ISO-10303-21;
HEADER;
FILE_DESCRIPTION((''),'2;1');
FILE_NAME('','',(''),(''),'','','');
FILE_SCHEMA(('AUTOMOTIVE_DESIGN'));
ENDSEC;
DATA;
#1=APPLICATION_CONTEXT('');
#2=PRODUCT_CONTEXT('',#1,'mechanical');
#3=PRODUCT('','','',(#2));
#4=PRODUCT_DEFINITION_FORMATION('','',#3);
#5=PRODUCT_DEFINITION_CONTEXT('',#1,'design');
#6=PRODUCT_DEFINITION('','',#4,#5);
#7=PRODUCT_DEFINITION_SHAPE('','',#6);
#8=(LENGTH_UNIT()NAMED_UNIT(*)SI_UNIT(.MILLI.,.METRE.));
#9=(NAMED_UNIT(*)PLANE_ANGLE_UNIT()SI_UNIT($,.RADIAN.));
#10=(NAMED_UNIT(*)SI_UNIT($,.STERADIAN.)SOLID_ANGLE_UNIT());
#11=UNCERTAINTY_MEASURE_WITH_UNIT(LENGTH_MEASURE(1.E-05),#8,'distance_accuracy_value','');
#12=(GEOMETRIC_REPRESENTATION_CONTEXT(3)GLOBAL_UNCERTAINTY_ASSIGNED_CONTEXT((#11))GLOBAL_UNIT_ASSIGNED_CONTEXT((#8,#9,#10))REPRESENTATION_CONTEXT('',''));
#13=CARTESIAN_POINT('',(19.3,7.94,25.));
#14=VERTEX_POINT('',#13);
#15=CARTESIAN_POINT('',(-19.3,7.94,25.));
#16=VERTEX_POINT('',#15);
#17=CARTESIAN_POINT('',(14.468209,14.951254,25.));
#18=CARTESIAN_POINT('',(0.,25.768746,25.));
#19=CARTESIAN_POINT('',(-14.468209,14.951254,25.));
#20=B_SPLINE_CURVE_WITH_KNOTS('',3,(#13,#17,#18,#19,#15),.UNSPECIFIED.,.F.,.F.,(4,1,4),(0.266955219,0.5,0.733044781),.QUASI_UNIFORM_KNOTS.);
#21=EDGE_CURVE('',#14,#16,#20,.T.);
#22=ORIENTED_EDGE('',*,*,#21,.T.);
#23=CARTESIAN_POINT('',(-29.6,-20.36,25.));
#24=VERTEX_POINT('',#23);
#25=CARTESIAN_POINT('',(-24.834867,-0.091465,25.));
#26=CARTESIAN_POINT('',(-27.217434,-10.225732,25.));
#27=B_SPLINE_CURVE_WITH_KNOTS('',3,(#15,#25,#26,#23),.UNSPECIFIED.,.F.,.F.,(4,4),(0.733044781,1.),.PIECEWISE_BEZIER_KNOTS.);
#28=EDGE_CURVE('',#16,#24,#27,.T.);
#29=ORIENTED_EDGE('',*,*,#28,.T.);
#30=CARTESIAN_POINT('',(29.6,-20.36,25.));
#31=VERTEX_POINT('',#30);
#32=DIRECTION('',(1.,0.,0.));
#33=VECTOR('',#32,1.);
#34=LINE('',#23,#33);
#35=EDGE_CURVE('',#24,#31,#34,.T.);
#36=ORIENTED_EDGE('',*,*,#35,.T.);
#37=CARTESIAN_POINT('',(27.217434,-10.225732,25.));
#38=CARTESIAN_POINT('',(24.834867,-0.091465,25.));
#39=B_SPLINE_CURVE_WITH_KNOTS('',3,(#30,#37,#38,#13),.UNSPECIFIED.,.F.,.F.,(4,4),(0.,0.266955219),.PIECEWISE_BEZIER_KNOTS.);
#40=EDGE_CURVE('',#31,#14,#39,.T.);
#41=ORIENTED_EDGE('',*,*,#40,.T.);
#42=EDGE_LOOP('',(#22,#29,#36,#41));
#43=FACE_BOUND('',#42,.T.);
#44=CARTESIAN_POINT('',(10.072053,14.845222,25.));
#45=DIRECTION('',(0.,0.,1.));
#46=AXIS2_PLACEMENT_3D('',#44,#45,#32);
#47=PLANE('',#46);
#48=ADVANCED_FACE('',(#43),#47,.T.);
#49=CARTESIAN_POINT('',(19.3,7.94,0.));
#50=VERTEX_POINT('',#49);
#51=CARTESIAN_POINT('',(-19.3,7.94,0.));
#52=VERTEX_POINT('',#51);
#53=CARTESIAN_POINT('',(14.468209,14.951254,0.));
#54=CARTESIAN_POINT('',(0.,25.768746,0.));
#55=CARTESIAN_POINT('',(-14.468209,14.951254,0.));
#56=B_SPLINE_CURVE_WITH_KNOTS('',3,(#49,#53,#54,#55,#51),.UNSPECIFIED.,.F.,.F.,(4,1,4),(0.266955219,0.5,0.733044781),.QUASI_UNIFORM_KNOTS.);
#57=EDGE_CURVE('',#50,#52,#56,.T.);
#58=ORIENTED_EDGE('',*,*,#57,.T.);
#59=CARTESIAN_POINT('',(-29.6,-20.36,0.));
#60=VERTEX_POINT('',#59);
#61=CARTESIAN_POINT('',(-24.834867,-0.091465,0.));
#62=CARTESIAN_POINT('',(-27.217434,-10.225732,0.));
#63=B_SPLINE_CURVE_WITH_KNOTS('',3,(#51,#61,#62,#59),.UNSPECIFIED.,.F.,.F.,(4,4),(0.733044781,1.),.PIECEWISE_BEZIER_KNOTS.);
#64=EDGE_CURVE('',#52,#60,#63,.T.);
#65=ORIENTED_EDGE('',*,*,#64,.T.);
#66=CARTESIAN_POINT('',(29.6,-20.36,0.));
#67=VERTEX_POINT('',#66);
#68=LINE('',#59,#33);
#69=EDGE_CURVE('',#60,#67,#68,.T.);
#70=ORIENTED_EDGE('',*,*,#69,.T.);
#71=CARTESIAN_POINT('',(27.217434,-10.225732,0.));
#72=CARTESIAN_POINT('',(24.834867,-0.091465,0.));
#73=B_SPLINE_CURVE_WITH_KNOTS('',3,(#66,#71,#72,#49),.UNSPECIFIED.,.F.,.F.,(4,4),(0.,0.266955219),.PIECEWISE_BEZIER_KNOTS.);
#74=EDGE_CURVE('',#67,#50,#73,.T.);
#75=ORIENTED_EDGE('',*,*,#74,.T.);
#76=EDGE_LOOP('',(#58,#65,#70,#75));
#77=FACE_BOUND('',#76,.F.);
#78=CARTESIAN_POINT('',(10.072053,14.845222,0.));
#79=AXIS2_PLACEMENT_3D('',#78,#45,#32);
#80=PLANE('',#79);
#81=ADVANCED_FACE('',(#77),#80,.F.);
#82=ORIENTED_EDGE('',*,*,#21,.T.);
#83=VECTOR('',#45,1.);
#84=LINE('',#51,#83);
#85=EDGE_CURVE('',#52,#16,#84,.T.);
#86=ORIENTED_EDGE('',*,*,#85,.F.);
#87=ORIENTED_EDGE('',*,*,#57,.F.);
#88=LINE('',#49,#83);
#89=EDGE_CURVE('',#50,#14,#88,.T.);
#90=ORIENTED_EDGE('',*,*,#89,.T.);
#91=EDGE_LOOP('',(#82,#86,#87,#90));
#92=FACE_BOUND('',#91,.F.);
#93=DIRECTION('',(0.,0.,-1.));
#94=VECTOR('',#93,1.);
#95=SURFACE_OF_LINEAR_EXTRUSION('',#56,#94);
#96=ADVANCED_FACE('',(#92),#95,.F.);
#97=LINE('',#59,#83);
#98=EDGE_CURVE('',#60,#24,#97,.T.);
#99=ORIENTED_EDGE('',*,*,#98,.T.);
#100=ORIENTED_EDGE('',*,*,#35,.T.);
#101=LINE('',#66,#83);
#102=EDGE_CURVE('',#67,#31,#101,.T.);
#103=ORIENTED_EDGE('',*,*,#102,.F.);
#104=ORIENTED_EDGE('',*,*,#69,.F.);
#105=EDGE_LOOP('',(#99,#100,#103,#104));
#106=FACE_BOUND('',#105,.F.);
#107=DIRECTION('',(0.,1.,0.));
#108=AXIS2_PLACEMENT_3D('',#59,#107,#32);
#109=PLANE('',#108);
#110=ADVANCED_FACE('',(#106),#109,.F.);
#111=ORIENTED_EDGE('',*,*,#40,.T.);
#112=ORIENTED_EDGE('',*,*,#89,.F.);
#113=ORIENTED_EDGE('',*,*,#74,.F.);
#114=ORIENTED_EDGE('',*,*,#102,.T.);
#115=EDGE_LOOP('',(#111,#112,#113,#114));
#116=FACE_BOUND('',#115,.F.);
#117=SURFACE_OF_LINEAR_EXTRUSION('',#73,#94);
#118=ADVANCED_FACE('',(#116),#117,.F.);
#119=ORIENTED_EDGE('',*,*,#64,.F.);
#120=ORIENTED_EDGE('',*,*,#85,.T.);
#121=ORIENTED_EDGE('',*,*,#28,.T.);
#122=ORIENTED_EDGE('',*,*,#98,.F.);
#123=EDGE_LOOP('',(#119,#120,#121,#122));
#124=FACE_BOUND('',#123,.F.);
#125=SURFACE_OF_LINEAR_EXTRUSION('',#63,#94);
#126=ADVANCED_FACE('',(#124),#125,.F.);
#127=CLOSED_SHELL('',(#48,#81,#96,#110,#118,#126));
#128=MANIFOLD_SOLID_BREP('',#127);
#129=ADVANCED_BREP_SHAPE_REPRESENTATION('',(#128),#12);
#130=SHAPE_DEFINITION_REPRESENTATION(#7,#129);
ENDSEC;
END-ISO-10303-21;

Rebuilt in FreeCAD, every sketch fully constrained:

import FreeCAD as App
import Part
import Sketcher

V = App.Vector

doc = App.newDocument("Part")
body = doc.addObject("PartDesign::Body", "Body")

# Sketch on XY plane
sketch1 = body.newObject("Sketcher::SketchObject", "Sketch")
sketch1.AttachmentSupport = (doc.getObject("XY_Plane"), [""])
sketch1.MapMode = "FlatFace"
sketch1.addGeometry([
    Part.BSplineCurve([V(19.3, 7.94, 0), V(14.468209, 14.951254, 0), V(0, 25.768746, 0), V(-14.468209, 14.951254, 0), V(-19.3, 7.94, 0)], [4, 1, 4], [0.266955219, 0.5, 0.733044781], False, 3, [1, 1, 1, 1, 1], False),
    Part.BSplineCurve([V(-19.3, 7.94, 0), V(-24.834867, -0.091465, 0), V(-27.217434, -10.225732, 0), V(-29.6, -20.36, 0)], [4, 4], [0.733044781, 1], False, 3, [1, 1, 1, 1], False),
    Part.LineSegment(V(-29.6, -20.36, 0), V(29.6, -20.36, 0)),
    Part.BSplineCurve([V(29.6, -20.36, 0), V(27.217434, -10.225732, 0), V(24.834867, -0.091465, 0), V(19.3, 7.94, 0)], [4, 4], [0, 0.266955219], False, 3, [1, 1, 1, 1], False),
], False)
sketch1.addConstraint([
    Sketcher.Constraint("Block", 0),
    Sketcher.Constraint("Block", 1),
    Sketcher.Constraint("Block", 3),
    Sketcher.Constraint("Coincident", 1, 2, 2, 1),
    Sketcher.Constraint("Coincident", 2, 2, 3, 1),
])
pad1 = body.newObject("PartDesign::Pad", "Pad")
pad1.Profile = sketch1
pad1.Length = 25

doc.recompute()
